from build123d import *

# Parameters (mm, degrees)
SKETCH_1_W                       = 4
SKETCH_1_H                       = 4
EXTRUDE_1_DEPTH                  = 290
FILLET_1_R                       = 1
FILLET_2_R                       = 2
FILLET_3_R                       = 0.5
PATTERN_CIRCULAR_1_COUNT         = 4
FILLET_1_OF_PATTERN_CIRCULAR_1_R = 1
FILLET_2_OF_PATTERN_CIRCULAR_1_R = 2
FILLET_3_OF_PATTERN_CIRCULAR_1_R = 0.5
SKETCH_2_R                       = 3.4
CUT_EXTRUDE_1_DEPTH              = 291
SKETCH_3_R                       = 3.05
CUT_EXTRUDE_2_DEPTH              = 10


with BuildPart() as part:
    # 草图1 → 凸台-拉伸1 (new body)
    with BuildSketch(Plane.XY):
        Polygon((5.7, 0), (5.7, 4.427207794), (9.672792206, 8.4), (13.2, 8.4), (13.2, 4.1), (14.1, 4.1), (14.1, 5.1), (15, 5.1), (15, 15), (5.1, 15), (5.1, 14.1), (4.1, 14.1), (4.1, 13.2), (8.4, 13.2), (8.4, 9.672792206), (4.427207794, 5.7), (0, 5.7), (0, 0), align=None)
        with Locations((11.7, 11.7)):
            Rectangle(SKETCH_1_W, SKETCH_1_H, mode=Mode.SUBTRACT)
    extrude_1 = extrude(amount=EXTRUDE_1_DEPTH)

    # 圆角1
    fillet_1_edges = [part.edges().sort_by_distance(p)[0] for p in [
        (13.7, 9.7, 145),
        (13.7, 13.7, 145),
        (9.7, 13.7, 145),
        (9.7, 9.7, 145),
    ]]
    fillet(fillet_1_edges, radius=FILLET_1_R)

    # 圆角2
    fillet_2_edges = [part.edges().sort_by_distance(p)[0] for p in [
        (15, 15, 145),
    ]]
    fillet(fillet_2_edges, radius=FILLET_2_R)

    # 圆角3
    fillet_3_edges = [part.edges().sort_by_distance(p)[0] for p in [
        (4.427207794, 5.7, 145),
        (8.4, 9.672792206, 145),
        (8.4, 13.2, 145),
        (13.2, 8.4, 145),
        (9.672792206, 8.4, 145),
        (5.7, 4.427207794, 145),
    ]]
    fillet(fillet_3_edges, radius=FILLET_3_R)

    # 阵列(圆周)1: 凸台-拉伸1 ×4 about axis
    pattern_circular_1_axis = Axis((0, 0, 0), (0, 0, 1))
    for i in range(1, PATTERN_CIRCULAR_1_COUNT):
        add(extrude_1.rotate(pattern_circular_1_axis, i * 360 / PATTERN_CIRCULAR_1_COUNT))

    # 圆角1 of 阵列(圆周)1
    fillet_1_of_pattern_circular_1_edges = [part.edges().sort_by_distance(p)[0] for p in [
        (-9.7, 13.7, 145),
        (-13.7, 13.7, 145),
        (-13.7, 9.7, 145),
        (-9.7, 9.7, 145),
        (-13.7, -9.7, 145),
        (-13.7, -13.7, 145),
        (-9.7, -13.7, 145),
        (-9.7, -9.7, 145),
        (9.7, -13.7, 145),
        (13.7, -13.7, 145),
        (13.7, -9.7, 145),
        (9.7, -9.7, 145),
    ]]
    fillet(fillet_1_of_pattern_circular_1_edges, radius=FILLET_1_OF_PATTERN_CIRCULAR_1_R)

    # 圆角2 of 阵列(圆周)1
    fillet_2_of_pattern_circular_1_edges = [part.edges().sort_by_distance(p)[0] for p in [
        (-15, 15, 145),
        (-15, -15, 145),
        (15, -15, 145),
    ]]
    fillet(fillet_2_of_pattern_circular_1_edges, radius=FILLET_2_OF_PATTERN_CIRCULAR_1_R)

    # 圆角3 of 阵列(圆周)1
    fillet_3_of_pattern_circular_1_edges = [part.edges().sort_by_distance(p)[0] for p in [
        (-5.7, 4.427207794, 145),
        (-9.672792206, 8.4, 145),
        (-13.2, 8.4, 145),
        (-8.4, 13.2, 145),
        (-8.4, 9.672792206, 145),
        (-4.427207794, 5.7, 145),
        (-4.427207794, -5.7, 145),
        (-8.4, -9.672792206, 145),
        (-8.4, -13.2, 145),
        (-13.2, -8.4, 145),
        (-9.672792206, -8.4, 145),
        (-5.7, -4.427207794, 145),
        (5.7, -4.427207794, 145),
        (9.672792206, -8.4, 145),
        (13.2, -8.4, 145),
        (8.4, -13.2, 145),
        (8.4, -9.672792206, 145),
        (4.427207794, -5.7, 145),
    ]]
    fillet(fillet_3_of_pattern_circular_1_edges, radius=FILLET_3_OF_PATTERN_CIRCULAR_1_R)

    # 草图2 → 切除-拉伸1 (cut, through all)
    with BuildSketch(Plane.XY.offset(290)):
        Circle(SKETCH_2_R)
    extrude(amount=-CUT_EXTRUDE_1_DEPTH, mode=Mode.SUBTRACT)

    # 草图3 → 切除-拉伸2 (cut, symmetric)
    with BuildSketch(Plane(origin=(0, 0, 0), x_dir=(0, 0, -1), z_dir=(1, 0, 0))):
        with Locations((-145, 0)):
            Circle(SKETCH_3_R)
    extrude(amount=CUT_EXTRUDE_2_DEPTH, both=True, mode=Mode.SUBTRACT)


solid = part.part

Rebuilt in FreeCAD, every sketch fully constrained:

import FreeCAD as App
import Part
import Sketcher
Q = App.Units.Quantity


def edges_at(feature, points):
    """Names of the edges that pass closest to the given points."""
    edges = feature.Shape.Edges
    near = lambda p: min(range(len(edges)), key=lambda i: edges[i].distToShape(Part.Vertex(*p))[0])
    return sorted({f"Edge{near(p) + 1}" for p in points})


def add_polygon(sketch, points):
    """Adds a closed chain of lines whose ends are joined by coincident constraints."""
    first, n = sketch.GeometryCount, len(points)
    for a, b in zip(points, points[1:] + points[:1]):
        sketch.addGeometry(Part.LineSegment(App.Vector(*a, 0), App.Vector(*b, 0)), False)
    for i in range(n):
        sketch.addConstraint(Sketcher.Constraint("Coincident", first + i, 2, first + (i + 1) % n, 1))

doc = App.newDocument("Part")
params = doc.addObject("Spreadsheet::Sheet", "Params")
for row, (alias, value) in enumerate([
    ("sketch1_width", "1 mm"),
    ("sketch1_width2", "4 mm"),
    ("sketch1_width3", "0.9 mm"),
    ("sketch1_width4", "9.9 mm"),
    ("sketch1_width5", "4.3 mm"),
    ("pad1_length", "290 mm"),
    ("fillet_radius", "1 mm"),
    ("fillet2_radius", "2 mm"),
    ("fillet3_radius", "0.5 mm"),
    ("fillet4_radius", "1 mm"),
    ("fillet5_radius", "2 mm"),
    ("fillet6_radius", "0.5 mm"),
    ("sketch2_diameter", "6.8 mm"),
    ("sketch3_diameter", "6.1 mm"),
    ("pocket2_length", "20 mm"),
], start=1):
    params.set(f"A{row}", alias)
    params.set(f"B{row}", "=" + value)
    params.setAlias(f"B{row}", alias)

body = doc.addObject("PartDesign::Body", "Body")

sketch1 = doc.addObject("Sketcher::SketchObject", "Sketch")
body.addObject(sketch1)
sketch1.AttachmentSupport = (doc.XY_Plane, [""])
sketch1.MapMode = "FlatFace"
add_polygon(sketch1, [(5.7, 0), (5.7, 4.427208), (9.672792, 8.4), (13.2, 8.4), (13.2, 4.1), (14.1, 4.1), (14.1, 5.1), (15, 5.1), (15, 15), (5.1, 15), (5.1, 14.1), (4.1, 14.1), (4.1, 13.2), (8.4, 13.2), (8.4, 9.672792), (4.427208, 5.7), (0, 5.7), (0, 0)])
add_polygon(sketch1, [(13.7, 9.7), (9.7, 9.7), (9.7, 13.7), (13.7, 13.7)])
sketch1.addConstraint([
    Sketcher.Constraint("Vertical", 0),
    Sketcher.Constraint("Horizontal", 2),
    Sketcher.Constraint("Vertical", 3),
    Sketcher.Constraint("Horizontal", 4),
    Sketcher.Constraint("Vertical", 5),
    Sketcher.Constraint("Horizontal", 6),
    Sketcher.Constraint("Vertical", 7),
    Sketcher.Constraint("Horizontal", 8),
    Sketcher.Constraint("Vertical", 9),
    Sketcher.Constraint("Horizontal", 10),
    Sketcher.Constraint("Vertical", 11),
    Sketcher.Constraint("Horizontal", 12),
    Sketcher.Constraint("Vertical", 13),
    Sketcher.Constraint("Horizontal", 15),
    Sketcher.Constraint("Vertical", 16),
    Sketcher.Constraint("Horizontal", 17),
    Sketcher.Constraint("Horizontal", 18),
    Sketcher.Constraint("Vertical", 19),
    Sketcher.Constraint("Horizontal", 20),
    Sketcher.Constraint("Vertical", 21),
    Sketcher.Constraint("Coincident", 16, 2, -1, 1),
    Sketcher.Constraint("Parallel", 1, 14),
    Sketcher.Constraint("Equal", 4, 6),
    Sketcher.Constraint("Equal", 15, 0),
    Sketcher.Constraint("Equal", 12, 3),
    Sketcher.Constraint("Equal", 10, 5),
    Sketcher.Constraint("Equal", 8, 7),
    Sketcher.Constraint("Equal", 6, 9),
    Sketcher.Constraint("Equal", 9, 11),
    Sketcher.Constraint("Equal", 2, 13),
    Sketcher.Constraint("Equal", 17, 16),
    Sketcher.Constraint("Equal", 20, 19),
    Sketcher.Constraint("DistanceX", 10, 2, 10, 1, Q("1 mm")),
    Sketcher.Constraint("DistanceX", 18, 2, 18, 1, Q("4 mm")),
    Sketcher.Constraint("Angle", 1, Q("45 deg")),
    Sketcher.Constraint("DistanceX", 4, 1, 4, 2, Q("0.9 mm")),
    Sketcher.Constraint("DistanceX", 8, 2, 8, 1, Q("9.9 mm")),
    Sketcher.Constraint("DistanceX", 12, 1, 12, 2, Q("4.3 mm")),
    Sketcher.Constraint("DistanceX", 17, 1, 17, 2, Q("5.7 mm")),
    Sketcher.Constraint("DistanceX", -1, 1, 6, 2, Q("15 mm")),
    Sketcher.Constraint("DistanceX", -1, 1, 18, 2, Q("9.7 mm")),
    Sketcher.Constraint("DistanceY", -1, 1, 18, 2, Q("9.7 mm")),
    Sketcher.Constraint("DistanceX", 2, 1, 2, 2, Q("3.527208 mm")),
])
sketch1.setExpression("Constraints[54]", "Params.sketch1_width")
sketch1.setExpression("Constraints[55]", "Params.sketch1_width2")
sketch1.setExpression("Constraints[57]", "Params.sketch1_width3")
sketch1.setExpression("Constraints[58]", "Params.sketch1_width4")
sketch1.setExpression("Constraints[59]", "Params.sketch1_width5")
pad1 = doc.addObject("PartDesign::Pad", "Pad")
body.addObject(pad1)
pad1.Profile = sketch1
pad1.setExpression("Length", "Params.pad1_length")
doc.recompute()

fillet = doc.addObject("PartDesign::Fillet", "Fillet")
body.addObject(fillet)
fillet.Base = (pad1, edges_at(pad1, [
    (13.7, 9.7, 145),
    (13.7, 13.7, 145),
    (9.7, 13.7, 145),
    (9.7, 9.7, 145),
]))
fillet.setExpression("Radius", "Params.fillet_radius")
doc.recompute()

fillet2 = doc.addObject("PartDesign::Fillet", "Fillet001")
body.addObject(fillet2)
fillet2.Base = (fillet, edges_at(fillet, [(15, 15, 145)]))
fillet2.setExpression("Radius", "Params.fillet2_radius")
doc.recompute()

fillet3 = doc.addObject("PartDesign::Fillet", "Fillet002")
body.addObject(fillet3)
fillet3.Base = (fillet2, edges_at(fillet2, [
    (4.427, 5.7, 145),
    (8.4, 9.673, 145),
    (8.4, 13.2, 145),
    (13.2, 8.4, 145),
    (9.673, 8.4, 145),
    (5.7, 4.427, 145),
]))
fillet3.setExpression("Radius", "Params.fillet3_radius")
doc.recompute()

polarpattern = doc.addObject("PartDesign::PolarPattern", "PolarPattern")
body.addObject(polarpattern)
polarpattern.Originals = [pad1]
polarpattern.Axis = (doc.Z_Axis, [""])
polarpattern.Angle = 360
polarpattern.Occurrences = 4
body.Tip = polarpattern
doc.recompute()

fillet4 = doc.addObject("PartDesign::Fillet", "Fillet003")
body.addObject(fillet4)
fillet4.Base = (polarpattern, edges_at(polarpattern, [
    (-9.7, 13.7, 145),
    (-13.7, 13.7, 145),
    (-13.7, 9.7, 145),
    (-9.7, 9.7, 145),
    (-13.7, -9.7, 145),
    (-13.7, -13.7, 145),
    (-9.7, -13.7, 145),
    (-9.7, -9.7, 145),
    (9.7, -13.7, 145),
    (13.7, -13.7, 145),
    (13.7, -9.7, 145),
    (9.7, -9.7, 145),
]))
fillet4.setExpression("Radius", "Params.fillet4_radius")
doc.recompute()

fillet5 = doc.addObject("PartDesign::Fillet", "Fillet004")
body.addObject(fillet5)
fillet5.Base = (fillet4, edges_at(fillet4, [(-15, 15, 145), (-15, -15, 145), (15, -15, 145)]))
fillet5.setExpression("Radius", "Params.fillet5_radius")
doc.recompute()

fillet6 = doc.addObject("PartDesign::Fillet", "Fillet005")
body.addObject(fillet6)
fillet6.Base = (fillet5, edges_at(fillet5, [
    (-5.7, 4.427, 145),
    (-9.673, 8.4, 145),
    (-13.2, 8.4, 145),
    (-8.4, 13.2, 145),
    (-8.4, 9.673, 145),
    (-4.427, 5.7, 145),
    (-4.427, -5.7, 145),
    (-8.4, -9.673, 145),
    (-8.4, -13.2, 145),
    (-13.2, -8.4, 145),
    (-9.673, -8.4, 145),
    (-5.7, -4.427, 145),
    (5.7, -4.427, 145),
    (9.673, -8.4, 145),
    (13.2, -8.4, 145),
    (8.4, -13.2, 145),
    (8.4, -9.673, 145),
    (4.427, -5.7, 145),
]))
fillet6.setExpression("Radius", "Params.fillet6_radius")

sketch2 = doc.addObject("Sketcher::SketchObject", "Sketch001")
body.addObject(sketch2)
sketch2.AttachmentSupport = (doc.XY_Plane, [""])
sketch2.MapMode = "FlatFace"
sketch2.AttachmentOffset = App.Placement(App.Vector(0, 0, 290), App.Rotation())
sketch2.addGeometry(Part.Circle(App.Vector(0, 0, 0), App.Vector(0, 0, 1), 3.4), False)
sketch2.addConstraint([
    Sketcher.Constraint("Coincident", 0, 3, -1, 1),
    Sketcher.Constraint("Diameter", 0, Q("6.8 mm")),
])
sketch2.setExpression("Constraints[1]", "Params.sketch2_diameter")
pocket1 = doc.addObject("PartDesign::Pocket", "Pocket")
body.addObject(pocket1)
pocket1.Profile = sketch2
pocket1.Type = "ThroughAll"

sketch3 = doc.addObject("Sketcher::SketchObject", "Sketch002")
body.addObject(sketch3)
sketch3.AttachmentSupport = (doc.YZ_Plane, [""])
sketch3.MapMode = "FlatFace"
sketch3.addGeometry(Part.Circle(App.Vector(0, 145, 0), App.Vector(0, 0, 1), 3.05), False)
sketch3.addConstraint([
    Sketcher.Constraint("PointOnObject", 0, 3, -2),
    Sketcher.Constraint("Diameter", 0, Q("6.1 mm")),
    Sketcher.Constraint("DistanceY", -1, 1, 0, 3, Q("145 mm")),
])
sketch3.setExpression("Constraints[1]", "Params.sketch3_diameter")
pocket2 = doc.addObject("PartDesign::Pocket", "Pocket001")
body.addObject(pocket2)
pocket2.Profile = sketch3
pocket2.setExpression("Length", "Params.pocket2_length")
pocket2.Midplane = True

doc.recompute()
